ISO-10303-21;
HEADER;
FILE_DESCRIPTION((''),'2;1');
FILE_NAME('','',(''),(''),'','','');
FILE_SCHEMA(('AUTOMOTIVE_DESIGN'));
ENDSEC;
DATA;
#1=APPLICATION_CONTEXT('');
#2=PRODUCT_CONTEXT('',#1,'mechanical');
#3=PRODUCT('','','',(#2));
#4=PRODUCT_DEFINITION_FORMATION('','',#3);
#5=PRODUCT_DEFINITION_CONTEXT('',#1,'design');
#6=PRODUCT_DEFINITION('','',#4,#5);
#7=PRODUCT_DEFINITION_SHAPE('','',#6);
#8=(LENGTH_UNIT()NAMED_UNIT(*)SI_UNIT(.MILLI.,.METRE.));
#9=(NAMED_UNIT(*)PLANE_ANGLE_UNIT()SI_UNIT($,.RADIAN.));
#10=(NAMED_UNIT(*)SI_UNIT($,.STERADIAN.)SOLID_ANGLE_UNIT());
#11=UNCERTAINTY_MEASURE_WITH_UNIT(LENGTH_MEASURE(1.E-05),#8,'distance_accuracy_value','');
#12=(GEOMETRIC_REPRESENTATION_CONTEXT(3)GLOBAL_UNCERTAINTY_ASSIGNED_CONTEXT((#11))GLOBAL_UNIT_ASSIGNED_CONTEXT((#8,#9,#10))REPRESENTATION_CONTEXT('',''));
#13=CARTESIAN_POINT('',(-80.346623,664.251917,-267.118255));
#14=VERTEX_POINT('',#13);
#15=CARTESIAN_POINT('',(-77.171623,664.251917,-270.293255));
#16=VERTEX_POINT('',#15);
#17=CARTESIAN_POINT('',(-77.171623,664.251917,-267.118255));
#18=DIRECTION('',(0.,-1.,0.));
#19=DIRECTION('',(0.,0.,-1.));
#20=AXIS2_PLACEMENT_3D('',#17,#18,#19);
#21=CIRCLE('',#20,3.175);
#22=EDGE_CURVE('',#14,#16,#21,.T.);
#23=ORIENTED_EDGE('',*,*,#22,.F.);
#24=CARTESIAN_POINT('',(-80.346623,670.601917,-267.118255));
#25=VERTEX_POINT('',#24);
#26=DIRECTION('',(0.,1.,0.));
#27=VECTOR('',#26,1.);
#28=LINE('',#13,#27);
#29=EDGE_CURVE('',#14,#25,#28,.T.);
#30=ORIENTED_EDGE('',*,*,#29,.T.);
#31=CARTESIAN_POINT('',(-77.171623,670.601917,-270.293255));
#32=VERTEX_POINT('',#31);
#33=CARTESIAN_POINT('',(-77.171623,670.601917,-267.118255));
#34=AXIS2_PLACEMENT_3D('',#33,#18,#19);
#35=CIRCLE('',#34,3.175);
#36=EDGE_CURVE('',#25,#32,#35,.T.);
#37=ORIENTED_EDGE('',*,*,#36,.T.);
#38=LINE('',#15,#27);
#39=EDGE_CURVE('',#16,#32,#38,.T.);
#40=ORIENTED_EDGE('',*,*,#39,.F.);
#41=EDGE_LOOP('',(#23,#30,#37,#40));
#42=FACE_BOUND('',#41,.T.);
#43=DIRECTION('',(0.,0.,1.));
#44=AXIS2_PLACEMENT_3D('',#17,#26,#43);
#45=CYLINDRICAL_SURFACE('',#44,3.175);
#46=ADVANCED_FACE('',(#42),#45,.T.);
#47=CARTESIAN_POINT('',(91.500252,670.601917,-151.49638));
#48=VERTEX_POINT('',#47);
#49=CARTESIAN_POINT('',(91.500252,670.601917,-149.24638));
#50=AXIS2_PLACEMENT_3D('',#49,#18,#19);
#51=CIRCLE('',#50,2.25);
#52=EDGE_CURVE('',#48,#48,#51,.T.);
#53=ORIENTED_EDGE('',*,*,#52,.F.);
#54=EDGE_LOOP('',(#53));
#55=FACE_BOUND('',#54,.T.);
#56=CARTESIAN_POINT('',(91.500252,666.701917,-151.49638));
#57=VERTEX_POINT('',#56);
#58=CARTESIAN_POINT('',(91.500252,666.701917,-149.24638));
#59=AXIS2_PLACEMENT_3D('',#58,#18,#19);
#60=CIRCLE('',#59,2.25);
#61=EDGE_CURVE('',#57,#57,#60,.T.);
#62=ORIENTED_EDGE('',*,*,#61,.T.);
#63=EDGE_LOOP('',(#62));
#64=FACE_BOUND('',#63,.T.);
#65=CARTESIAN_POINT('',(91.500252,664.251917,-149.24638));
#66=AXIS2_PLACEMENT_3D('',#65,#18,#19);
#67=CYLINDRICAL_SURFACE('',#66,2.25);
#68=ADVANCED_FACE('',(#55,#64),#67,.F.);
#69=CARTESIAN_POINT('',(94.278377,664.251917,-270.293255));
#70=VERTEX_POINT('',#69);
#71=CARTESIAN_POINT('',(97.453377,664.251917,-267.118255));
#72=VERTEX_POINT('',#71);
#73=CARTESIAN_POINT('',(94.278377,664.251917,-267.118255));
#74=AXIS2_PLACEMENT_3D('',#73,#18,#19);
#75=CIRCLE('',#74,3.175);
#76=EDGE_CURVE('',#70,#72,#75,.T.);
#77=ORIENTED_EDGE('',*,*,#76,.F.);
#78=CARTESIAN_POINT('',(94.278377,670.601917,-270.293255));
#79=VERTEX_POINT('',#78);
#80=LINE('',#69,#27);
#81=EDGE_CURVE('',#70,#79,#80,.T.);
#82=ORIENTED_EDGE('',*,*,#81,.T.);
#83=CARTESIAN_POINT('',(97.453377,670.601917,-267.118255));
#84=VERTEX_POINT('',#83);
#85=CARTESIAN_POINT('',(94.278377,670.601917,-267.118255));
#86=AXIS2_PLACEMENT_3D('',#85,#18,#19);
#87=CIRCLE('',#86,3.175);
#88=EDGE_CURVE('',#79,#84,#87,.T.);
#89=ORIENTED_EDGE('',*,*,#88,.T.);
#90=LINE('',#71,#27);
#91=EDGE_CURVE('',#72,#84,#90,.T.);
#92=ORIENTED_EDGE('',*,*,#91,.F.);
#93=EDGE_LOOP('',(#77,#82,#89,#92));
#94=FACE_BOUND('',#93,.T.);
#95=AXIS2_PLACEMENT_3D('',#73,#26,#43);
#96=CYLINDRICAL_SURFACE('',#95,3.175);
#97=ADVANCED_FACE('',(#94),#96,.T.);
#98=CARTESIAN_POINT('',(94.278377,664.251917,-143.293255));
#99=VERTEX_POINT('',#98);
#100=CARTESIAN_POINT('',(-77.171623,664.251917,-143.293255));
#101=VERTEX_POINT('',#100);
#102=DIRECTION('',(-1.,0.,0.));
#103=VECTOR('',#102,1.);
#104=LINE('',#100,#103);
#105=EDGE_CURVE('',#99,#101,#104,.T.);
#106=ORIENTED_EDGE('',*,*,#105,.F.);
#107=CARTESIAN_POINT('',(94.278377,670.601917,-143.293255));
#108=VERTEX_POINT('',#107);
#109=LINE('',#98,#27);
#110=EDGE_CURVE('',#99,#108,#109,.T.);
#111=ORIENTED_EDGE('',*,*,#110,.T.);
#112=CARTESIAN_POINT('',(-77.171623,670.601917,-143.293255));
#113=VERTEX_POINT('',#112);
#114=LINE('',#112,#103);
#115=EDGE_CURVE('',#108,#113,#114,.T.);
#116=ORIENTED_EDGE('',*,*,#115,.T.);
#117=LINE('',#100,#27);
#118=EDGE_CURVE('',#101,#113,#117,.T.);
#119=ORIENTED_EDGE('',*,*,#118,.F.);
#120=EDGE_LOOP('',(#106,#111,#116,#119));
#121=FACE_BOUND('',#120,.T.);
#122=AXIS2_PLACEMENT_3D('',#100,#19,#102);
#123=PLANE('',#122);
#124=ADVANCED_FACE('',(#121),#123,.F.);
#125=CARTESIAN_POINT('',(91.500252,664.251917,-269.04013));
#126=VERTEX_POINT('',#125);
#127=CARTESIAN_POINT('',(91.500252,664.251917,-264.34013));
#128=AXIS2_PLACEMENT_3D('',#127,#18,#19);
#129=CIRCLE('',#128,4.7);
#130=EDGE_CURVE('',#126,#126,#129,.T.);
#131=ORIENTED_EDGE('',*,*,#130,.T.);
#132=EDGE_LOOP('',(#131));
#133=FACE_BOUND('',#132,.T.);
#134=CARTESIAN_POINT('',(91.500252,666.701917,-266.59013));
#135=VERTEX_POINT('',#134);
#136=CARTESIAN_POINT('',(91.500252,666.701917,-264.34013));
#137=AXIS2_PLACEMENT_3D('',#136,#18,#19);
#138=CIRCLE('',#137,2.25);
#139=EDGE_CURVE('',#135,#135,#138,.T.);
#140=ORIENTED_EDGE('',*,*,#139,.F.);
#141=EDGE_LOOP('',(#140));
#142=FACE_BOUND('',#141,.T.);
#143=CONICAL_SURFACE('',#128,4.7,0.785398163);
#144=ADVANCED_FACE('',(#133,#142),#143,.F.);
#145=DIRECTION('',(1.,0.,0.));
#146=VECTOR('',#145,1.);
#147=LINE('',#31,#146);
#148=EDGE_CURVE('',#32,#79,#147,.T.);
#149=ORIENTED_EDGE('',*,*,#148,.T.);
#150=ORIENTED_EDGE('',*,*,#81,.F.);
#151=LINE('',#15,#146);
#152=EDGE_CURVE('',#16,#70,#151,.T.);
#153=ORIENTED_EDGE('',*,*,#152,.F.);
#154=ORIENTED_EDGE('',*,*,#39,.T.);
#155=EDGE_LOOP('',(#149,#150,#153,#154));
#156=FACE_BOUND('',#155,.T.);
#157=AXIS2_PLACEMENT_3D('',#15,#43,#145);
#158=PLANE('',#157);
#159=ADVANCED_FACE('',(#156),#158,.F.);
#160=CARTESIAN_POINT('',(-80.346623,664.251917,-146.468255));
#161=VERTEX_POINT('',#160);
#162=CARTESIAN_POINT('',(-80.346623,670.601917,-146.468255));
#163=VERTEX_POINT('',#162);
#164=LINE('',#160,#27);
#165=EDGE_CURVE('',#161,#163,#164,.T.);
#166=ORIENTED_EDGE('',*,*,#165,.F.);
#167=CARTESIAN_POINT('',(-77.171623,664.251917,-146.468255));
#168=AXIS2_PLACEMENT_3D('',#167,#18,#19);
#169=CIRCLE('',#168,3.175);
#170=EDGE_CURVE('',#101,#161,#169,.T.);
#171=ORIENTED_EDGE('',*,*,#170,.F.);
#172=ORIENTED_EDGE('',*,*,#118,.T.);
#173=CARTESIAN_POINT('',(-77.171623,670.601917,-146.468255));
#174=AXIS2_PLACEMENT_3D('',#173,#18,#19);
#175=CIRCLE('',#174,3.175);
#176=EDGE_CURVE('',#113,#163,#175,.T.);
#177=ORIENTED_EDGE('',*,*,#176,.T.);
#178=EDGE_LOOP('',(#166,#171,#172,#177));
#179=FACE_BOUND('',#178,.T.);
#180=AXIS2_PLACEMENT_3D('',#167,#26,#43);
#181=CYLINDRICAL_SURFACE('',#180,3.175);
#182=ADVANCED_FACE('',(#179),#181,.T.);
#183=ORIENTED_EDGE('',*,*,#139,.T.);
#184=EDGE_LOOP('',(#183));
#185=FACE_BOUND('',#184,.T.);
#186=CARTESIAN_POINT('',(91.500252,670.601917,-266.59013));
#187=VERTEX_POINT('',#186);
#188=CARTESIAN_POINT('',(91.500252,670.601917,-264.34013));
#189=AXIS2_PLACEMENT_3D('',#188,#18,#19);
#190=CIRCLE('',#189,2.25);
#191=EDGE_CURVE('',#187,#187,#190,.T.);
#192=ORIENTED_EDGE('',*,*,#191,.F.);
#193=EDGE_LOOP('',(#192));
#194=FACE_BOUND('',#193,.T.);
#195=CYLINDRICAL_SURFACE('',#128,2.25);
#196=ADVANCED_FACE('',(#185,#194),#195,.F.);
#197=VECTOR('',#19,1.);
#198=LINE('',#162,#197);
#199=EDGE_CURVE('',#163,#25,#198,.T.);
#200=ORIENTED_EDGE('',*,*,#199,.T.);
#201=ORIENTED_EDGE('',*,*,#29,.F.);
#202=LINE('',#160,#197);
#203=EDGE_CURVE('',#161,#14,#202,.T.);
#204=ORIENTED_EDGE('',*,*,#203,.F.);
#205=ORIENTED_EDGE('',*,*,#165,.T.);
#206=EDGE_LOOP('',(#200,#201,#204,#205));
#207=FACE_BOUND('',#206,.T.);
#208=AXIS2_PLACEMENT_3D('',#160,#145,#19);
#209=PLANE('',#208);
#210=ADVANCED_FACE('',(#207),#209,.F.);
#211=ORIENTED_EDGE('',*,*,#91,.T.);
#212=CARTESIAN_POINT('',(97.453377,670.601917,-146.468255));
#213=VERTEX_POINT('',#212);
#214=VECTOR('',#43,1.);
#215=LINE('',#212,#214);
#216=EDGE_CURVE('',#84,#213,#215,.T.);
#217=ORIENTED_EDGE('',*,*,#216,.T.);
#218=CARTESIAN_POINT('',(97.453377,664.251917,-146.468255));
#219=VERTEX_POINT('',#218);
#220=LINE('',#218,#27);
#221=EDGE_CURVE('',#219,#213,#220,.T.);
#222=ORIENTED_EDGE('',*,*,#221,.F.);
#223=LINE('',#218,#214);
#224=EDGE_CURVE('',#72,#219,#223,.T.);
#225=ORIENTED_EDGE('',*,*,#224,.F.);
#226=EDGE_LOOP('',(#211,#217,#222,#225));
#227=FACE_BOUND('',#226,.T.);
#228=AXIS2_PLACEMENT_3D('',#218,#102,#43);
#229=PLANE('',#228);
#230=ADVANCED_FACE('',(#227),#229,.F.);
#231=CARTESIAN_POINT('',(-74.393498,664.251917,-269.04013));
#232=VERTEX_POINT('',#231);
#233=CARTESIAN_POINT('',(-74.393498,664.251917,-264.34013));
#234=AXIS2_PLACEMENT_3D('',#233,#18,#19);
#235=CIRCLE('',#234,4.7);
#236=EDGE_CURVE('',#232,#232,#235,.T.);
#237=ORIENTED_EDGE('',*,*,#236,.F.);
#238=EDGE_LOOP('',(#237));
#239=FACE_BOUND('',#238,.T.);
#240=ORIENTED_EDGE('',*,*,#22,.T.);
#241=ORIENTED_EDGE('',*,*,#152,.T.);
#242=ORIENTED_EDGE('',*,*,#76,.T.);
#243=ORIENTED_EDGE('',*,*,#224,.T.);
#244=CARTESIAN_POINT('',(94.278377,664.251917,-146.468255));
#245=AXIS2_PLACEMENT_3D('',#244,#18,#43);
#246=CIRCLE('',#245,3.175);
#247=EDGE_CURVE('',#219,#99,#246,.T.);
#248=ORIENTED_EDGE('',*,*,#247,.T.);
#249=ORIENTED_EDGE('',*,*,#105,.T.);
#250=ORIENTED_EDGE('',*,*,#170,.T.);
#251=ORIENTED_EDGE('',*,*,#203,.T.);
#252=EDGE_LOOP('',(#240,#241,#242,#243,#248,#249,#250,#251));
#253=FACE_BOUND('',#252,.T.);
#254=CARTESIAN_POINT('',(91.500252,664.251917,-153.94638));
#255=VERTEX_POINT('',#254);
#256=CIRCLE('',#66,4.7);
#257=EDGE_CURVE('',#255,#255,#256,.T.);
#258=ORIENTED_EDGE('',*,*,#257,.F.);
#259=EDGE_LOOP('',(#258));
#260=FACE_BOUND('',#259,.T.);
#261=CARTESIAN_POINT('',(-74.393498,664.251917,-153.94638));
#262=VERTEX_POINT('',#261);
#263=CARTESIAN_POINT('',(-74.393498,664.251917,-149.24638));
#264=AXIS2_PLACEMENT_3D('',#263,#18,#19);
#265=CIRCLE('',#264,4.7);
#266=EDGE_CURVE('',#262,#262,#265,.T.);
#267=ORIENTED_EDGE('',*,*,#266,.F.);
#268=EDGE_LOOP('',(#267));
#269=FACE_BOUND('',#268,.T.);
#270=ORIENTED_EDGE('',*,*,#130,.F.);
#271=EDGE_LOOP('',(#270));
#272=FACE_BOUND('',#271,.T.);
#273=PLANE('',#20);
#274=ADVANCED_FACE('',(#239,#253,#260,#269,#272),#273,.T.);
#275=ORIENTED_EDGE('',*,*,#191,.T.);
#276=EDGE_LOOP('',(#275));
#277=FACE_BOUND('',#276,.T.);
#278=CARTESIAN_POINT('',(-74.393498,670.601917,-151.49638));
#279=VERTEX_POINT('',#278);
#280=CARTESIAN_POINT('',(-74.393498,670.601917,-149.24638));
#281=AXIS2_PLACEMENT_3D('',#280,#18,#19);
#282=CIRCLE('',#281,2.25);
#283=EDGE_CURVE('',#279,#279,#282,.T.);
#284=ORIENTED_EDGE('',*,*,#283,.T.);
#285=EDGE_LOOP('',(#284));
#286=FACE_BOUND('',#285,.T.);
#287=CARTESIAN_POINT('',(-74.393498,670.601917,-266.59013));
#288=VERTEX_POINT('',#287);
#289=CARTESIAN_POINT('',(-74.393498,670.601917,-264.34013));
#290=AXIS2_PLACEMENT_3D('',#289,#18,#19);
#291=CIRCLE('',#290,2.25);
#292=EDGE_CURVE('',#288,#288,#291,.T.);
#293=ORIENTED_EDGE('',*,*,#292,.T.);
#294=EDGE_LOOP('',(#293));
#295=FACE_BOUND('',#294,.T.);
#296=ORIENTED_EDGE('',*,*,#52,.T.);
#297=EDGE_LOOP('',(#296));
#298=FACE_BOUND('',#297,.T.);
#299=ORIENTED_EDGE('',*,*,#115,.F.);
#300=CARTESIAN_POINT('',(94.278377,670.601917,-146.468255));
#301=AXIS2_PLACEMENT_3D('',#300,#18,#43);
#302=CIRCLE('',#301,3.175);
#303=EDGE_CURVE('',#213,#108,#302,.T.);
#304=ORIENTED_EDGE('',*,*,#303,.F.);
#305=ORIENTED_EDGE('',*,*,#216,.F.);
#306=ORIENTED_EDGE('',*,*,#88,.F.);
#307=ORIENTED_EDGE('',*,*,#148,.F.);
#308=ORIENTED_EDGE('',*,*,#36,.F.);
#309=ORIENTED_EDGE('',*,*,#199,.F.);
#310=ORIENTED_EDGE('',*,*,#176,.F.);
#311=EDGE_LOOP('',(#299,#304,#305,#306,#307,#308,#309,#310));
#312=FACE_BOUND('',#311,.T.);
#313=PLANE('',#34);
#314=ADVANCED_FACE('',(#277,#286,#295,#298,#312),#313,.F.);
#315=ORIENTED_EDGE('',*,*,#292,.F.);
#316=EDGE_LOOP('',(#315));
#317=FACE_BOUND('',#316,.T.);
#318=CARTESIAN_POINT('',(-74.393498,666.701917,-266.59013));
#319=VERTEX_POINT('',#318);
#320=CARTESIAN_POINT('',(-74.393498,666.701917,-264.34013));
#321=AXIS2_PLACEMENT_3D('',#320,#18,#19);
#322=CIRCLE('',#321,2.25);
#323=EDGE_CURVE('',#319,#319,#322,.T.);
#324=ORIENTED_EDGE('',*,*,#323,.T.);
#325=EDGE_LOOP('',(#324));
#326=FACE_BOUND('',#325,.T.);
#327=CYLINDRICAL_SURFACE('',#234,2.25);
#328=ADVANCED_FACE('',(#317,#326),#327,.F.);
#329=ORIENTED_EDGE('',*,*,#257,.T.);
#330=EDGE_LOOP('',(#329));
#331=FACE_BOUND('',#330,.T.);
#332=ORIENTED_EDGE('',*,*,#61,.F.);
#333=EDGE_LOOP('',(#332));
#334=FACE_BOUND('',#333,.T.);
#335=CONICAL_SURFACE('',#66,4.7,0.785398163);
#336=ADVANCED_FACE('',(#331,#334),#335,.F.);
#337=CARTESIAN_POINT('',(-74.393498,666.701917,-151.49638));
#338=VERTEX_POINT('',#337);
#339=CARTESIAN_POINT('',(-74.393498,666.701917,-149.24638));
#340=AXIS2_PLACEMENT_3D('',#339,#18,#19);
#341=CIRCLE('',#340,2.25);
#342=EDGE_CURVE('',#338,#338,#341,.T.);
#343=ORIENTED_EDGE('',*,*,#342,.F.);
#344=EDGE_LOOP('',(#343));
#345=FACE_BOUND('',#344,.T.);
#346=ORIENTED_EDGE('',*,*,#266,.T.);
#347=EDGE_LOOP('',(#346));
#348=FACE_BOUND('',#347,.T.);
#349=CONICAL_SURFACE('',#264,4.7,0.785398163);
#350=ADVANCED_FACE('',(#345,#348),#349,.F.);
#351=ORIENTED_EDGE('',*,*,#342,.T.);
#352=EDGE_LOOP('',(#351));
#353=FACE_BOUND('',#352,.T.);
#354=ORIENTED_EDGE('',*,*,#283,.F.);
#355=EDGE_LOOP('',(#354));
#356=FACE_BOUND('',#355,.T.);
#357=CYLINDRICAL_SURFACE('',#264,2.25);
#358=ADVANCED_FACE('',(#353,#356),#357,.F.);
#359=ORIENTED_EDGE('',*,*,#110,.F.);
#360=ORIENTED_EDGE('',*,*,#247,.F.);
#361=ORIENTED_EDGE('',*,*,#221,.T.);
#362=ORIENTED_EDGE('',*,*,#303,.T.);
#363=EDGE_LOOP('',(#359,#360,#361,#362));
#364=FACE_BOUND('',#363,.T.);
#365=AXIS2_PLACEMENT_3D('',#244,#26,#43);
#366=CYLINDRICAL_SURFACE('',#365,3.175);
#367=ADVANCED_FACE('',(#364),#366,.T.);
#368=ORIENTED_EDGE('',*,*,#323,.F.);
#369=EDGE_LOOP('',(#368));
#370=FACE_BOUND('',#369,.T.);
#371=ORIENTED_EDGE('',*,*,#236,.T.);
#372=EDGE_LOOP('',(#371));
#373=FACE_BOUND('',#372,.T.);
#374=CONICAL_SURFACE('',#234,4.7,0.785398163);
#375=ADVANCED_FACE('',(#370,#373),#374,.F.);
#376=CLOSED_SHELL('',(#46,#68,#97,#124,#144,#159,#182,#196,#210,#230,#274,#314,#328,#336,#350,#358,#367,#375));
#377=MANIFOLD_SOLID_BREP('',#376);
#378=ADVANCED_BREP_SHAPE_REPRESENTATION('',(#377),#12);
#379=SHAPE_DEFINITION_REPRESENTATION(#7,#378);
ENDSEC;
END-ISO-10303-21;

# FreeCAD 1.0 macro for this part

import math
import FreeCAD as App
import Part
import Sketcher
Q = App.Units.Quantity

doc = App.newDocument("Part")
body = doc.addObject("PartDesign::Body", "Body")

sketch1 = body.newObject("Sketcher::SketchObject", "Sketch")
sketch1.AttachmentSupport = (doc.getObject("XZ_Plane"), [""])
sketch1.MapMode = "FlatFace"
sketch1.AttachmentOffset = App.Placement(App.Vector(0, 0, -670.601917), App.Rotation())
sketch1.addGeometry(Part.LineSegment(App.Vector(94.3, -143.3, 0), App.Vector(-77.2, -143.3, 0)), False)
sketch1.addGeometry(Part.ArcOfCircle(Part.Circle(App.Vector(-77.2, -146.5, 0), App.Vector(0, 0, 1), 3.2), math.radians(90), math.radians(180)), False)
sketch1.addGeometry(Part.LineSegment(App.Vector(-80.3, -146.5, 0), App.Vector(-80.3, -267.1, 0)), False)
sketch1.addGeometry(Part.ArcOfCircle(Part.Circle(App.Vector(-77.2, -267.1, 0), App.Vector(0, 0, 1), 3.2), math.radians(-180), math.radians(-90)), False)
sketch1.addGeometry(Part.LineSegment(App.Vector(-77.2, -270.3, 0), App.Vector(94.3, -270.3, 0)), False)
sketch1.addGeometry(Part.ArcOfCircle(Part.Circle(App.Vector(94.3, -267.1, 0), App.Vector(0, 0, 1), 3.2), math.radians(-90), math.radians(0)), False)
sketch1.addGeometry(Part.LineSegment(App.Vector(97.5, -267.1, 0), App.Vector(97.5, -146.5, 0)), False)
sketch1.addGeometry(Part.ArcOfCircle(Part.Circle(App.Vector(94.3, -146.5, 0), App.Vector(0, 0, 1), 3.2), math.radians(0), math.radians(90)), False)
sketch1.addConstraint(Sketcher.Constraint("Tangent", 0, 2, 1, 1))
sketch1.addConstraint(Sketcher.Constraint("Tangent", 1, 2, 2, 1))
sketch1.addConstraint(Sketcher.Constraint("Tangent", 2, 2, 3, 1))
sketch1.addConstraint(Sketcher.Constraint("Tangent", 3, 2, 4, 1))
sketch1.addConstraint(Sketcher.Constraint("Tangent", 4, 2, 5, 1))
sketch1.addConstraint(Sketcher.Constraint("Tangent", 5, 2, 6, 1))
sketch1.addConstraint(Sketcher.Constraint("Tangent", 6, 2, 7, 1))
sketch1.addConstraint(Sketcher.Constraint("Tangent", 7, 2, 0, 1))
sketch1.addConstraint(Sketcher.Constraint("Horizontal", 0))
sketch1.addConstraint(Sketcher.Constraint("Vertical", 2))
sketch1.addConstraint(Sketcher.Constraint("Horizontal", 4))
sketch1.addConstraint(Sketcher.Constraint("Vertical", 6))
sketch1.addConstraint(Sketcher.Constraint("Equal", 1, 3))
sketch1.addConstraint(Sketcher.Constraint("Equal", 3, 5))
sketch1.addConstraint(Sketcher.Constraint("Equal", 5, 7))
sketch1.addConstraint(Sketcher.Constraint("Radius", 1, Q("0.125 in")))
sketch1.addConstraint(Sketcher.Constraint("DistanceY", 3, 2, 0, 2, Q("5 in")))
sketch1.addConstraint(Sketcher.Constraint("DistanceX", 0, 2, 0, 1, Q("6.75 in")))
sketch1.addConstraint(Sketcher.Constraint("DistanceX", 1, 3, -1, 1, 77.171623))
sketch1.addConstraint(Sketcher.Constraint("DistanceY", 1, 3, -1, 1, 146.468255))
pad1 = body.newObject("PartDesign::Pad", "Pad")
pad1.Profile = sketch1
pad1.Length = Q("0.25 in")

sketch2 = body.newObject("Sketcher::SketchObject", "Sketch001")
sketch2.AttachmentSupport = (doc.getObject("XZ_Plane"), [""])
sketch2.MapMode = "FlatFace"
sketch2.AttachmentOffset = App.Placement(App.Vector(0, 0, -664.251917), App.Rotation())
sketch2.addGeometry(Part.Circle(App.Vector(91.5, -149.2, 0), App.Vector(0, 0, 1), 2.2), False)
sketch2.addGeometry(Part.Circle(App.Vector(91.5, -264.3, 0), App.Vector(0, 0, 1), 2.2), False)
sketch2.addGeometry(Part.Circle(App.Vector(-74.4, -264.3, 0), App.Vector(0, 0, 1), 2.2), False)
sketch2.addGeometry(Part.Circle(App.Vector(-74.4, -149.2, 0), App.Vector(0, 0, 1), 2.2), False)
sketch2.addConstraint(Sketcher.Constraint("Equal", 0, 1))
sketch2.addConstraint(Sketcher.Constraint("Equal", 1, 2))
sketch2.addConstraint(Sketcher.Constraint("Equal", 2, 3))
sketch2.addConstraint(Sketcher.Constraint("Horizontal", 1, 3, 2, 3))
sketch2.addConstraint(Sketcher.Constraint("Horizontal", 0, 3, 3, 3))
sketch2.addConstraint(Sketcher.Constraint("Vertical", 0, 3, 1, 3))
sketch2.addConstraint(Sketcher.Constraint("Vertical", 2, 3, 3, 3))
sketch2.addConstraint(Sketcher.Constraint("Diameter", 0, 4.5))
sketch2.addConstraint(Sketcher.Constraint("DistanceY", 1, 3, 0, 3, Q("4.53125 in")))
sketch2.addConstraint(Sketcher.Constraint("DistanceX", 2, 3, 1, 3, Q("6.53125 in")))
sketch2.addConstraint(Sketcher.Constraint("DistanceY", 0, 3, -1, 1, 149.24638))
sketch2.addConstraint(Sketcher.Constraint("DistanceX", -1, 1, 0, 3, 91.500252))
doc.recompute()
hole = body.newObject("PartDesign::Hole", "Hole")
hole.Profile = sketch2
hole.ThreadType = "None"
hole.Diameter = 4.5
hole.DepthType = "ThroughAll"
hole.HoleCutType = "Countersink"
hole.HoleCutDiameter = 9.4
hole.HoleCutCountersinkAngle = 90

doc.recompute()
